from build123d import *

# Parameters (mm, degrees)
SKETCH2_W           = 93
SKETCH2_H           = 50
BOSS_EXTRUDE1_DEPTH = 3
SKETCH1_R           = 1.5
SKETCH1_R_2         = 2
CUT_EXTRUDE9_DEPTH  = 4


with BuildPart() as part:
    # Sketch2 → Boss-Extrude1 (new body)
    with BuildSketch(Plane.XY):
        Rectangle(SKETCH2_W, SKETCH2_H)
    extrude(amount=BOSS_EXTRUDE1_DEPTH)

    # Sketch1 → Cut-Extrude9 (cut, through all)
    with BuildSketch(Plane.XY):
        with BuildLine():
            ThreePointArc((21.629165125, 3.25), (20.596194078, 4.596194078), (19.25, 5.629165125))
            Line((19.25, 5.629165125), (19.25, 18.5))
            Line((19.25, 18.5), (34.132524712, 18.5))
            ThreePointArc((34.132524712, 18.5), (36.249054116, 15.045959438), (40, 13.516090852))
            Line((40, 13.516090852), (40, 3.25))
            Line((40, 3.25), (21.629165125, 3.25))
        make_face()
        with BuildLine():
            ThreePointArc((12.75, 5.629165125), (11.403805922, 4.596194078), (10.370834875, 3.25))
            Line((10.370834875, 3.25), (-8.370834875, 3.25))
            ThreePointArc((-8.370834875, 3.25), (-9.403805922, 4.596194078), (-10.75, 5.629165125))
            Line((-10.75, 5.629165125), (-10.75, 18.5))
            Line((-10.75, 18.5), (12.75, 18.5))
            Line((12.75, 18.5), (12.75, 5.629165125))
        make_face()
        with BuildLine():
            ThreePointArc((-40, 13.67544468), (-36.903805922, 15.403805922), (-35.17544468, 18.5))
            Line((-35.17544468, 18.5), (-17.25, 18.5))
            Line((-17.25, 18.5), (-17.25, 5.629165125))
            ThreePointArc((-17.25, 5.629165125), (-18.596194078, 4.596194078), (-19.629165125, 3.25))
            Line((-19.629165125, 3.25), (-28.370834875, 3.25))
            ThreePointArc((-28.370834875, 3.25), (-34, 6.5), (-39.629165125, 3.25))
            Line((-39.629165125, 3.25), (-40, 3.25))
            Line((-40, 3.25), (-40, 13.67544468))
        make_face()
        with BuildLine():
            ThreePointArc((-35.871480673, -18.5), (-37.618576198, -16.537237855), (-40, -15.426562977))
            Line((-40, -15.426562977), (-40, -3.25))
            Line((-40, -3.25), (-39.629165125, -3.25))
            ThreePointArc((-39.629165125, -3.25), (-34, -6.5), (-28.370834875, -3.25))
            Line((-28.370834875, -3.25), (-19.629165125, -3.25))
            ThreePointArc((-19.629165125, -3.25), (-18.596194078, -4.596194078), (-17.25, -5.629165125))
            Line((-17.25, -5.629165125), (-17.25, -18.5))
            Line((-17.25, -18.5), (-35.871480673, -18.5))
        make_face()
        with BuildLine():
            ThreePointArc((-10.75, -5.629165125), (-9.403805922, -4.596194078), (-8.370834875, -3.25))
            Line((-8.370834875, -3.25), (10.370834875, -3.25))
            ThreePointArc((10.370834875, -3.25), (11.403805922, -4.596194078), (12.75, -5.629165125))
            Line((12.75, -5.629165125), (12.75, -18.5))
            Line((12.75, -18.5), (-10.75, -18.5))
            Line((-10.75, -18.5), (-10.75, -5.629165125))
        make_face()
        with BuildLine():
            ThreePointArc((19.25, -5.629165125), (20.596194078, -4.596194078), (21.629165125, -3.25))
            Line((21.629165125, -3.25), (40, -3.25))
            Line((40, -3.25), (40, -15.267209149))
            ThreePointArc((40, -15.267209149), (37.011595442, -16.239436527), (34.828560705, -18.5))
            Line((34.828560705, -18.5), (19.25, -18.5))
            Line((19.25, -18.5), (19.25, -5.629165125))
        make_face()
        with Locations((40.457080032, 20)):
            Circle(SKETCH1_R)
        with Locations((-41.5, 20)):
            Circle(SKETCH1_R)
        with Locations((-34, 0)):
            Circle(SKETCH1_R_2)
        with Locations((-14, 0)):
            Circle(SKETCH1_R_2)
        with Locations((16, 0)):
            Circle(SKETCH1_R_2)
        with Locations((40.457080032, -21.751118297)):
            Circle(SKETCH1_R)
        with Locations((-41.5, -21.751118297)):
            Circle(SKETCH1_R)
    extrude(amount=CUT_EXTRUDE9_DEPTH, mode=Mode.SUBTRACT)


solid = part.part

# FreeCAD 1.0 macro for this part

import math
import FreeCAD as App
import Part
import Sketcher
Q = App.Units.Quantity

doc = App.newDocument("Part")
params = doc.addObject("Spreadsheet::Sheet", "Params")
for row, (alias, value) in enumerate([
    ("sketch1_width", "93 mm"),
    ("sketch1_height", "50 mm"),
    ("pad1_length", "3 mm"),
    ("sketch2_diameter", "3 mm"),
    ("sketch2_diameter2", "4 mm"),
    ("sketch2_radius", "6.5 mm"),
    ("sketch2_width", "23.5 mm"),
], start=1):
    params.set(f"A{row}", alias)
    params.set(f"B{row}", "=" + value)
    params.setAlias(f"B{row}", alias)

body = doc.addObject("PartDesign::Body", "Body")

# Sketch on XY plane
sketch1 = doc.addObject("Sketcher::SketchObject", "Sketch")
body.addObject(sketch1)
sketch1.AttachmentSupport = (doc.XY_Plane, [""])
sketch1.MapMode = "FlatFace"
sketch1.addGeometry(Part.LineSegment(App.Vector(-46.5, 25, 0), App.Vector(-46.5, -25, 0)), False)
sketch1.addGeometry(Part.LineSegment(App.Vector(-46.5, -25, 0), App.Vector(46.5, -25, 0)), False)
sketch1.addGeometry(Part.LineSegment(App.Vector(46.5, -25, 0), App.Vector(46.5, 25, 0)), False)
sketch1.addGeometry(Part.LineSegment(App.Vector(46.5, 25, 0), App.Vector(-46.5, 25, 0)), False)
sketch1.addConstraint(Sketcher.Constraint("Coincident", 0, 2, 1, 1))
sketch1.addConstraint(Sketcher.Constraint("Coincident", 1, 2, 2, 1))
sketch1.addConstraint(Sketcher.Constraint("Coincident", 2, 2, 3, 1))
sketch1.addConstraint(Sketcher.Constraint("Coincident", 3, 2, 0, 1))
sketch1.addConstraint(Sketcher.Constraint("Vertical", 0))
sketch1.addConstraint(Sketcher.Constraint("Horizontal", 1))
sketch1.addConstraint(Sketcher.Constraint("Vertical", 2))
sketch1.addConstraint(Sketcher.Constraint("Horizontal", 3))
sketch1.addConstraint(Sketcher.Constraint("Symmetric", 0, 2, 2, 2, -1, 1))
sketch1.addConstraint(Sketcher.Constraint("DistanceX", 1, 1, 1, 2, Q("93 mm")))
sketch1.addConstraint(Sketcher.Constraint("DistanceY", 0, 2, 0, 1, Q("50 mm")))
sketch1.setExpression("Constraints[9]", "Params.sketch1_width")
sketch1.setExpression("Constraints[10]", "Params.sketch1_height")
pad1 = doc.addObject("PartDesign::Pad", "Pad")
body.addObject(pad1)
pad1.Profile = sketch1
pad1.setExpression("Length", "Params.pad1_length")

# Sketch on XY plane
sketch2 = doc.addObject("Sketcher::SketchObject", "Sketch001")
body.addObject(sketch2)
sketch2.AttachmentSupport = (doc.XY_Plane, [""])
sketch2.MapMode = "FlatFace"
sketch2.addGeometry(Part.ArcOfCircle(Part.Circle(App.Vector(16, 0, 0), App.Vector(0, 0, 1), 6.5), math.radians(30), math.radians(60)), False)
sketch2.addGeometry(Part.LineSegment(App.Vector(21.629165, 3.25, 0), App.Vector(40, 3.25, 0)), False)
sketch2.addGeometry(Part.LineSegment(App.Vector(40, 3.25, 0), App.Vector(40, 13.516091, 0)), False)
sketch2.addGeometry(Part.ArcOfCircle(Part.Circle(App.Vector(40.45708, 20, 0), App.Vector(0, 0, 1), 6.5), math.radians(-166.657636), math.radians(-94.032367)), False)
sketch2.addGeometry(Part.LineSegment(App.Vector(34.132525, 18.5, 0), App.Vector(19.25, 18.5, 0)), False)
sketch2.addGeometry(Part.LineSegment(App.Vector(19.25, 18.5, 0), App.Vector(19.25, 5.629165, 0)), False)
sketch2.addGeometry(Part.ArcOfCircle(Part.Circle(App.Vector(16, 0, 0), App.Vector(0, 0, 1), 6.5), math.radians(120), math.radians(150)), False)
sketch2.addGeometry(Part.LineSegment(App.Vector(12.75, 5.629165, 0), App.Vector(12.75, 18.5, 0)), False)
sketch2.addGeometry(Part.LineSegment(App.Vector(12.75, 18.5, 0), App.Vector(-10.75, 18.5, 0)), False)
sketch2.addGeometry(Part.LineSegment(App.Vector(-10.75, 18.5, 0), App.Vector(-10.75, 5.629165, 0)), False)
sketch2.addGeometry(Part.ArcOfCircle(Part.Circle(App.Vector(-14, 0, 0), App.Vector(0, 0, 1), 6.5), math.radians(30), math.radians(60)), False)
sketch2.addGeometry(Part.LineSegment(App.Vector(-8.370835, 3.25, 0), App.Vector(10.370835, 3.25, 0)), False)
sketch2.addGeometry(Part.ArcOfCircle(Part.Circle(App.Vector(-41.5, 20, 0), App.Vector(0, 0, 1), 6.5), math.radians(-76.657636), math.radians(-13.342364)), False)
sketch2.addGeometry(Part.LineSegment(App.Vector(-40, 13.675445, 0), App.Vector(-40, 3.25, 0)), False)
sketch2.addGeometry(Part.LineSegment(App.Vector(-40, 3.25, 0), App.Vector(-39.629165, 3.25, 0)), False)
sketch2.addGeometry(Part.ArcOfCircle(Part.Circle(App.Vector(-34, 0, 0), App.Vector(0, 0, 1), 6.5), math.radians(30), math.radians(150)), False)
sketch2.addGeometry(Part.LineSegment(App.Vector(-28.370835, 3.25, 0), App.Vector(-19.629165, 3.25, 0)), False)
sketch2.addGeometry(Part.ArcOfCircle(Part.Circle(App.Vector(-14, 0, 0), App.Vector(0, 0, 1), 6.5), math.radians(120), math.radians(150)), False)
sketch2.addGeometry(Part.LineSegment(App.Vector(-17.25, 5.629165, 0), App.Vector(-17.25, 18.5, 0)), False)
sketch2.addGeometry(Part.LineSegment(App.Vector(-17.25, 18.5, 0), App.Vector(-35.175445, 18.5, 0)), False)
sketch2.addGeometry(Part.ArcOfCircle(Part.Circle(App.Vector(-41.5, -21.751118, 0), App.Vector(0, 0, 1), 6.5), math.radians(30.011383), math.radians(76.657636)), False)
sketch2.addGeometry(Part.LineSegment(App.Vector(-35.871481, -18.5, 0), App.Vector(-17.25, -18.5, 0)), False)
sketch2.addGeometry(Part.LineSegment(App.Vector(-17.25, -18.5, 0), App.Vector(-17.25, -5.629165, 0)), False)
sketch2.addGeometry(Part.ArcOfCircle(Part.Circle(App.Vector(-14, 0, 0), App.Vector(0, 0, 1), 6.5), math.radians(-150), math.radians(-120)), False)
sketch2.addGeometry(Part.LineSegment(App.Vector(-19.629165, -3.25, 0), App.Vector(-28.370835, -3.25, 0)), False)
sketch2.addGeometry(Part.ArcOfCircle(Part.Circle(App.Vector(-34, 0, 0), App.Vector(0, 0, 1), 6.5), math.radians(-150), math.radians(-30)), False)
sketch2.addGeometry(Part.LineSegment(App.Vector(-39.629165, -3.25, 0), App.Vector(-40, -3.25, 0)), False)
sketch2.addGeometry(Part.LineSegment(App.Vector(-40, -3.25, 0), App.Vector(-40, -15.426563, 0)), False)
sketch2.addGeometry(Part.ArcOfCircle(Part.Circle(App.Vector(-14, 0, 0), App.Vector(0, 0, 1), 6.5), math.radians(-60), math.radians(-30)), False)
sketch2.addGeometry(Part.LineSegment(App.Vector(-10.75, -5.629165, 0), App.Vector(-10.75, -18.5, 0)), False)
sketch2.addGeometry(Part.LineSegment(App.Vector(-10.75, -18.5, 0), App.Vector(12.75, -18.5, 0)), False)
sketch2.addGeometry(Part.LineSegment(App.Vector(12.75, -18.5, 0), App.Vector(12.75, -5.629165, 0)), False)
sketch2.addGeometry(Part.ArcOfCircle(Part.Circle(App.Vector(16, 0, 0), App.Vector(0, 0, 1), 6.5), math.radians(-150), math.radians(-120)), False)
sketch2.addGeometry(Part.LineSegment(App.Vector(10.370835, -3.25, 0), App.Vector(-8.370835, -3.25, 0)), False)
sketch2.addGeometry(Part.ArcOfCircle(Part.Circle(App.Vector(16, 0, 0), App.Vector(0, 0, 1), 6.5), math.radians(-60), math.radians(-30)), False)
sketch2.addGeometry(Part.LineSegment(App.Vector(19.25, -5.629165, 0), App.Vector(19.25, -18.5, 0)), False)
sketch2.addGeometry(Part.LineSegment(App.Vector(19.25, -18.5, 0), App.Vector(34.828561, -18.5, 0)), False)
sketch2.addGeometry(Part.ArcOfCircle(Part.Circle(App.Vector(40.45708, -21.751118, 0), App.Vector(0, 0, 1), 6.5), math.radians(94.032367), math.radians(149.988617)), False)
sketch2.addGeometry(Part.LineSegment(App.Vector(40, -15.267209, 0), App.Vector(40, -3.25, 0)), False)
sketch2.addGeometry(Part.LineSegment(App.Vector(40, -3.25, 0), App.Vector(21.629165, -3.25, 0)), False)
sketch2.addGeometry(Part.Circle(App.Vector(40.45708, 20, 0), App.Vector(0, 0, 1), 1.5), False)
sketch2.addGeometry(Part.Circle(App.Vector(-41.5, 20, 0), App.Vector(0, 0, 1), 1.5), False)
sketch2.addGeometry(Part.Circle(App.Vector(-34, 0, 0), App.Vector(0, 0, 1), 2), False)
sketch2.addGeometry(Part.Circle(App.Vector(-14, 0, 0), App.Vector(0, 0, 1), 2), False)
sketch2.addGeometry(Part.Circle(App.Vector(16, 0, 0), App.Vector(0, 0, 1), 2), False)
sketch2.addGeometry(Part.Circle(App.Vector(40.45708, -21.751118, 0), App.Vector(0, 0, 1), 1.5), False)
sketch2.addGeometry(Part.Circle(App.Vector(-41.5, -21.751118, 0), App.Vector(0, 0, 1), 1.5), False)
sketch2.addConstraint(Sketcher.Constraint("Coincident", 0, 1, 1, 1))
sketch2.addConstraint(Sketcher.Constraint("Coincident", 1, 2, 2, 1))
sketch2.addConstraint(Sketcher.Constraint("Coincident", 2, 2, 3, 2))
sketch2.addConstraint(Sketcher.Constraint("Coincident", 3, 1, 4, 1))
sketch2.addConstraint(Sketcher.Constraint("Coincident", 4, 2, 5, 1))
sketch2.addConstraint(Sketcher.Constraint("Coincident", 5, 2, 0, 2))
sketch2.addConstraint(Sketcher.Constraint("Coincident", 6, 1, 7, 1))
sketch2.addConstraint(Sketcher.Constraint("Coincident", 7, 2, 8, 1))
sketch2.addConstraint(Sketcher.Constraint("Coincident", 8, 2, 9, 1))
sketch2.addConstraint(Sketcher.Constraint("Coincident", 9, 2, 10, 2))
sketch2.addConstraint(Sketcher.Constraint("Coincident", 10, 1, 11, 1))
sketch2.addConstraint(Sketcher.Constraint("Coincident", 11, 2, 6, 2))
sketch2.addConstraint(Sketcher.Constraint("Coincident", 12, 1, 13, 1))
sketch2.addConstraint(Sketcher.Constraint("Coincident", 13, 2, 14, 1))
sketch2.addConstraint(Sketcher.Constraint("Coincident", 14, 2, 15, 2))
sketch2.addConstraint(Sketcher.Constraint("Coincident", 15, 1, 16, 1))
sketch2.addConstraint(Sketcher.Constraint("Coincident", 16, 2, 17, 2))
sketch2.addConstraint(Sketcher.Constraint("Coincident", 17, 1, 18, 1))
sketch2.addConstraint(Sketcher.Constraint("Coincident", 18, 2, 19, 1))
sketch2.addConstraint(Sketcher.Constraint("Coincident", 19, 2, 12, 2))
sketch2.addConstraint(Sketcher.Constraint("Coincident", 20, 1, 21, 1))
sketch2.addConstraint(Sketcher.Constraint("Coincident", 21, 2, 22, 1))
sketch2.addConstraint(Sketcher.Constraint("Coincident", 22, 2, 23, 2))
sketch2.addConstraint(Sketcher.Constraint("Coincident", 23, 1, 24, 1))
sketch2.addConstraint(Sketcher.Constraint("Coincident", 24, 2, 25, 2))
sketch2.addConstraint(Sketcher.Constraint("Coincident", 25, 1, 26, 1))
sketch2.addConstraint(Sketcher.Constraint("Coincident", 26, 2, 27, 1))
sketch2.addConstraint(Sketcher.Constraint("Coincident", 27, 2, 20, 2))
sketch2.addConstraint(Sketcher.Constraint("Coincident", 28, 1, 29, 1))
sketch2.addConstraint(Sketcher.Constraint("Coincident", 29, 2, 30, 1))
sketch2.addConstraint(Sketcher.Constraint("Coincident", 30, 2, 31, 1))
sketch2.addConstraint(Sketcher.Constraint("Coincident", 31, 2, 32, 2))
sketch2.addConstraint(Sketcher.Constraint("Coincident", 32, 1, 33, 1))
sketch2.addConstraint(Sketcher.Constraint("Coincident", 33, 2, 28, 2))
sketch2.addConstraint(Sketcher.Constraint("Coincident", 34, 1, 35, 1))
sketch2.addConstraint(Sketcher.Constraint("Coincident", 35, 2, 36, 1))
sketch2.addConstraint(Sketcher.Constraint("Coincident", 36, 2, 37, 2))
sketch2.addConstraint(Sketcher.Constraint("Coincident", 37, 1, 38, 1))
sketch2.addConstraint(Sketcher.Constraint("Coincident", 38, 2, 39, 1))
sketch2.addConstraint(Sketcher.Constraint("Coincident", 39, 2, 34, 2))
sketch2.addConstraint(Sketcher.Constraint("Horizontal", 1))
sketch2.addConstraint(Sketcher.Constraint("Vertical", 2))
sketch2.addConstraint(Sketcher.Constraint("Horizontal", 4))
sketch2.addConstraint(Sketcher.Constraint("Vertical", 5))
sketch2.addConstraint(Sketcher.Constraint("Vertical", 7))
sketch2.addConstraint(Sketcher.Constraint("Horizontal", 8))
sketch2.addConstraint(Sketcher.Constraint("Vertical", 9))
sketch2.addConstraint(Sketcher.Constraint("Horizontal", 11))
sketch2.addConstraint(Sketcher.Constraint("Vertical", 13))
sketch2.addConstraint(Sketcher.Constraint("Horizontal", 14))
sketch2.addConstraint(Sketcher.Constraint("Horizontal", 16))
sketch2.addConstraint(Sketcher.Constraint("Vertical", 18))
sketch2.addConstraint(Sketcher.Constraint("Horizontal", 19))
sketch2.addConstraint(Sketcher.Constraint("Horizontal", 21))
sketch2.addConstraint(Sketcher.Constraint("Vertical", 22))
sketch2.addConstraint(Sketcher.Constraint("Horizontal", 24))
sketch2.addConstraint(Sketcher.Constraint("Horizontal", 26))
sketch2.addConstraint(Sketcher.Constraint("Vertical", 27))
sketch2.addConstraint(Sketcher.Constraint("Vertical", 29))
sketch2.addConstraint(Sketcher.Constraint("Horizontal", 30))
sketch2.addConstraint(Sketcher.Constraint("Vertical", 31))
sketch2.addConstraint(Sketcher.Constraint("Horizontal", 33))
sketch2.addConstraint(Sketcher.Constraint("Vertical", 35))
sketch2.addConstraint(Sketcher.Constraint("Horizontal", 36))
sketch2.addConstraint(Sketcher.Constraint("Vertical", 38))
sketch2.addConstraint(Sketcher.Constraint("Horizontal", 39))
sketch2.addConstraint(Sketcher.Constraint("Coincident", 6, 3, 0, 3))
sketch2.addConstraint(Sketcher.Constraint("Coincident", 17, 3, 10, 3))
sketch2.addConstraint(Sketcher.Constraint("Coincident", 23, 3, 10, 3))
sketch2.addConstraint(Sketcher.Constraint("Coincident", 25, 3, 15, 3))
sketch2.addConstraint(Sketcher.Constraint("Coincident", 28, 3, 10, 3))
sketch2.addConstraint(Sketcher.Constraint("Coincident", 32, 3, 0, 3))
sketch2.addConstraint(Sketcher.Constraint("Coincident", 34, 3, 0, 3))
sketch2.addConstraint(Sketcher.Constraint("Coincident", 40, 3, 3, 3))
sketch2.addConstraint(Sketcher.Constraint("Coincident", 41, 3, 12, 3))
sketch2.addConstraint(Sketcher.Constraint("Coincident", 42, 3, 15, 3))
sketch2.addConstraint(Sketcher.Constraint("Coincident", 43, 3, 10, 3))
sketch2.addConstraint(Sketcher.Constraint("Coincident", 44, 3, 0, 3))
sketch2.addConstraint(Sketcher.Constraint("Coincident", 45, 3, 37, 3))
sketch2.addConstraint(Sketcher.Constraint("Coincident", 46, 3, 20, 3))
sketch2.addConstraint(Sketcher.Constraint("Equal", 0, 3))
sketch2.addConstraint(Sketcher.Constraint("Equal", 3, 6))
sketch2.addConstraint(Sketcher.Constraint("Equal", 6, 10))
sketch2.addConstraint(Sketcher.Constraint("Equal", 10, 12))
sketch2.addConstraint(Sketcher.Constraint("Equal", 12, 15))
sketch2.addConstraint(Sketcher.Constraint("Equal", 15, 17))
sketch2.addConstraint(Sketcher.Constraint("Equal", 17, 20))
sketch2.addConstraint(Sketcher.Constraint("Equal", 20, 23))
sketch2.addConstraint(Sketcher.Constraint("Equal", 23, 25))
sketch2.addConstraint(Sketcher.Constraint("Equal", 25, 28))
sketch2.addConstraint(Sketcher.Constraint("Equal", 28, 32))
sketch2.addConstraint(Sketcher.Constraint("Equal", 32, 34))
sketch2.addConstraint(Sketcher.Constraint("Equal", 34, 37))
sketch2.addConstraint(Sketcher.Constraint("Equal", 40, 41))
sketch2.addConstraint(Sketcher.Constraint("Equal", 42, 43))
sketch2.addConstraint(Sketcher.Constraint("Equal", 43, 44))
sketch2.addConstraint(Sketcher.Constraint("Equal", 41, 45))
sketch2.addConstraint(Sketcher.Constraint("Equal", 45, 46))
sketch2.addConstraint(Sketcher.Constraint("Symmetric", 1, 2, 26, 2, -1, 1))
sketch2.addConstraint(Sketcher.Constraint("Symmetric", 13, 2, 38, 2, -1, 1))
sketch2.addConstraint(Sketcher.Constraint("Symmetric", 1, 2, 13, 2, -2))
sketch2.addConstraint(Sketcher.Constraint("Symmetric", 18, 2, 21, 2, -1))
sketch2.addConstraint(Sketcher.Constraint("Symmetric", 16, 2, 23, 1, -1))
sketch2.addConstraint(Sketcher.Constraint("Symmetric", 8, 2, 29, 2, -1))
sketch2.addConstraint(Sketcher.Constraint("Symmetric", 6, 1, 31, 2, -1))
sketch2.addConstraint(Sketcher.Constraint("Symmetric", 4, 2, 35, 2, -1))
sketch2.addConstraint(Sketcher.Constraint("PointOnObject", 15, 3, -1))
sketch2.addConstraint(Sketcher.Constraint("Horizontal", 3, 3, 12, 3))
sketch2.addConstraint(Sketcher.Constraint("Horizontal", 20, 3, 37, 3))
sketch2.addConstraint(Sketcher.Constraint("Horizontal", 5, 2, 6, 1))
sketch2.addConstraint(Sketcher.Constraint("Horizontal", 4, 2, 7, 2))
sketch2.addConstraint(Sketcher.Constraint("Horizontal", 6, 1, 9, 2))
sketch2.addConstraint(Sketcher.Constraint("Horizontal", 1, 2, 10, 1))
sketch2.addConstraint(Sketcher.Constraint("Horizontal", 14, 2, 15, 1))
sketch2.addConstraint(Sketcher.Constraint("Horizontal", 9, 2, 17, 1))
sketch2.addConstraint(Sketcher.Constraint("Horizontal", 8, 2, 18, 2))
sketch2.addConstraint(Sketcher.Constraint("Horizontal", 26, 2, 32, 1))
sketch2.addConstraint(Sketcher.Constraint("Vertical", 12, 3, 20, 3))
sketch2.addConstraint(Sketcher.Constraint("Vertical", 3, 3, 37, 3))
sketch2.addConstraint(Sketcher.Constraint("Diameter", 40, Q("3 mm")))
sketch2.addConstraint(Sketcher.Constraint("Diameter", 42, Q("4 mm")))
sketch2.addConstraint(Sketcher.Constraint("Radius", 0, Q("6.5 mm")))
sketch2.addConstraint(Sketcher.Constraint("DistanceX", 8, 2, 8, 1, Q("23.5 mm")))
sketch2.addConstraint(Sketcher.Constraint("DistanceX", -1, 1, 0, 3, Q("16 mm")))
sketch2.addConstraint(Sketcher.Constraint("DistanceY", -1, 1, 3, 3, Q("20 mm")))
sketch2.addConstraint(Sketcher.Constraint("DistanceX", 10, 3, -1, 1, Q("14 mm")))
sketch2.addConstraint(Sketcher.Constraint("DistanceX", 15, 3, -1, 1, Q("34 mm")))
sketch2.addConstraint(Sketcher.Constraint("DistanceX", -1, 1, 1, 2, Q("40 mm")))
sketch2.addConstraint(Sketcher.Constraint("DistanceX", 12, 3, -1, 1, Q("41.5 mm")))
sketch2.addConstraint(Sketcher.Constraint("DistanceY", -1, 1, 3, 1, Q("18.5 mm")))
sketch2.addConstraint(Sketcher.Constraint("DistanceY", -1, 1, 0, 1, Q("3.25 mm")))
sketch2.addConstraint(Sketcher.Constraint("DistanceX", 21, 1, 21, 2, Q("18.621481 mm")))
sketch2.addConstraint(Sketcher.Constraint("DistanceX", 36, 1, 36, 2, Q("15.578561 mm")))
sketch2.setExpression("Constraints[119]", "Params.sketch2_diameter")
sketch2.setExpression("Constraints[120]", "Params.sketch2_diameter2")
sketch2.setExpression("Constraints[121]", "Params.sketch2_radius")
sketch2.setExpression("Constraints[122]", "Params.sketch2_width")
pocket1 = doc.addObject("PartDesign::Pocket", "Pocket")
body.addObject(pocket1)
pocket1.Profile = sketch2
pocket1.Type = "ThroughAll"
pocket1.Reversed = True

doc.recompute()
